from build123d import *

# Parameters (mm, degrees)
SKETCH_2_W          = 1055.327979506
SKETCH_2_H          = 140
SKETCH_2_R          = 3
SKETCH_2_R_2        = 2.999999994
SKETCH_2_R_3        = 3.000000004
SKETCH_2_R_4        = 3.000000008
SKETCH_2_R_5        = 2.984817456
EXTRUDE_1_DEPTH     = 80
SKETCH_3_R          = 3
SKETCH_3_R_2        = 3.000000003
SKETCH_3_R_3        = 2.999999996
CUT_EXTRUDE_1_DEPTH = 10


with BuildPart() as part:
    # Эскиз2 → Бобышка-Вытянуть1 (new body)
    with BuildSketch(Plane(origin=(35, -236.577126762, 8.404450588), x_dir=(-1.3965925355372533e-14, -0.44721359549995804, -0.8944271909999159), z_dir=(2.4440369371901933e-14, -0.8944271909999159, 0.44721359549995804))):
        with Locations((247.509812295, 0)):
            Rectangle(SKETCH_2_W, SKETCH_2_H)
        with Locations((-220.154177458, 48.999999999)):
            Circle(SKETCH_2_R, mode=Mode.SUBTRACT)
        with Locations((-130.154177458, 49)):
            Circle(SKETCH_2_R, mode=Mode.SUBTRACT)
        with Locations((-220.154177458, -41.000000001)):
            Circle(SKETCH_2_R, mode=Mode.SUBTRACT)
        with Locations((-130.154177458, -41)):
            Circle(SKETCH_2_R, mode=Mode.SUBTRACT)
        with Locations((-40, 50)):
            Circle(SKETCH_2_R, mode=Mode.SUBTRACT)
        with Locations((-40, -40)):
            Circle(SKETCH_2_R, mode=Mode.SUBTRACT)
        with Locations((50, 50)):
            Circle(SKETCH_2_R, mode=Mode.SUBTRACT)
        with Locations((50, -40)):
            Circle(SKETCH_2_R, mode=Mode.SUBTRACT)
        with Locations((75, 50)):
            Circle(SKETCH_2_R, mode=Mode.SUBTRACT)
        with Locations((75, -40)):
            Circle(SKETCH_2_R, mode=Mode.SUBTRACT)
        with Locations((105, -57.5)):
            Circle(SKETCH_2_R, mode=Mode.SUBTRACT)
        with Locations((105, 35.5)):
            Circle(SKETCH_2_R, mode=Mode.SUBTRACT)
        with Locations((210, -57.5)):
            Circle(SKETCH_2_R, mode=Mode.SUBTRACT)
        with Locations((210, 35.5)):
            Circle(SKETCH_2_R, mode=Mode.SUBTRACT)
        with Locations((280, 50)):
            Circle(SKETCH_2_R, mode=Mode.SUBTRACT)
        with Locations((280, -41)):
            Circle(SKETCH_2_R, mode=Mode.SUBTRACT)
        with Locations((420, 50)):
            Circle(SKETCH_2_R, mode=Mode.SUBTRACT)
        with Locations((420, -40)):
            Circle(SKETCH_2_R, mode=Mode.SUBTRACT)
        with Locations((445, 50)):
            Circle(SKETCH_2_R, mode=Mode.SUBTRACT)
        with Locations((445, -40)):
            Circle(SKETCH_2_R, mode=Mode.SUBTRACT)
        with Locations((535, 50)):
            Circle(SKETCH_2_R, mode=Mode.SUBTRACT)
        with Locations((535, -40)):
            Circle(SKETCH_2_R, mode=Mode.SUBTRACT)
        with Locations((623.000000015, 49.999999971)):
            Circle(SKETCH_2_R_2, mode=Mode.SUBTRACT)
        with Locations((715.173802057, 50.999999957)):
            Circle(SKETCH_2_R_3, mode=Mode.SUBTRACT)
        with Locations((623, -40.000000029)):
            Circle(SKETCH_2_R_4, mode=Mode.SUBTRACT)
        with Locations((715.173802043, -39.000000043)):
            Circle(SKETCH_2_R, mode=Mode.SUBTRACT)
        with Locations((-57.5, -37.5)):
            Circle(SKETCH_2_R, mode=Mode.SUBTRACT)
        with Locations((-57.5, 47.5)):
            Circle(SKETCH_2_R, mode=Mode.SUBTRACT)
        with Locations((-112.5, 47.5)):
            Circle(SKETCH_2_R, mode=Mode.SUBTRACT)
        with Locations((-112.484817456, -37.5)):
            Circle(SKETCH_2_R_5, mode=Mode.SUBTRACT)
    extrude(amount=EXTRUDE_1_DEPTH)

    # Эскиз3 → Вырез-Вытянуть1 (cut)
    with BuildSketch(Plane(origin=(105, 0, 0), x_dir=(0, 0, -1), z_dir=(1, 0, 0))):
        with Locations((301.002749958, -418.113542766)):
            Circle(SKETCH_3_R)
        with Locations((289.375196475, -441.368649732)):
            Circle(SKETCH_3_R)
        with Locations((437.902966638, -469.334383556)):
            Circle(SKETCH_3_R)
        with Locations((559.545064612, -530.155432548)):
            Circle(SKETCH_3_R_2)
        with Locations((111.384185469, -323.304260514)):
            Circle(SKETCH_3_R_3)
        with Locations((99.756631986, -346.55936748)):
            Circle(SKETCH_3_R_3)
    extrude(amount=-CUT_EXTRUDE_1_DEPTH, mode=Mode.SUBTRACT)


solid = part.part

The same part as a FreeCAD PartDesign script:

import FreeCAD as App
import Part
import Sketcher
Q = App.Units.Quantity

doc = App.newDocument("Part")
body = doc.addObject("PartDesign::Body", "Body")

# Sketch on an angled plane
sketch1 = body.newObject("Sketcher::SketchObject", "Sketch")
sketch1.Placement = App.Placement(App.Vector(35, -236.577127, 8.404451), App.Rotation(App.Vector(0, -0.447213595, -0.894427191), App.Vector(1, 0, 0), App.Vector(0, -0.894427191, 0.447213595), "ZXY"))
sketch1.addGeometry(Part.LineSegment(App.Vector(-280.2, 70, 0), App.Vector(-280.2, -70, 0)), False)
sketch1.addGeometry(Part.LineSegment(App.Vector(-280.2, -70, 0), App.Vector(775.2, -70, 0)), False)
sketch1.addGeometry(Part.LineSegment(App.Vector(775.2, -70, 0), App.Vector(775.2, 70, 0)), False)
sketch1.addGeometry(Part.LineSegment(App.Vector(775.2, 70, 0), App.Vector(-280.2, 70, 0)), False)
sketch1.addGeometry(Part.Circle(App.Vector(-220.2, -41, 0), App.Vector(0, 0, 1), 3), False)
sketch1.addGeometry(Part.Circle(App.Vector(-130.2, -41, 0), App.Vector(0, 0, 1), 3), False)
sketch1.addGeometry(Part.Circle(App.Vector(-112.5, -37.5, 0), App.Vector(0, 0, 1), 3), False)
sketch1.addGeometry(Part.Circle(App.Vector(-40, -40, 0), App.Vector(0, 0, 1), 3), False)
sketch1.addGeometry(Part.Circle(App.Vector(-57.5, -37.5, 0), App.Vector(0, 0, 1), 3), False)
sketch1.addGeometry(Part.Circle(App.Vector(105, -57.5, 0), App.Vector(0, 0, 1), 3), False)
sketch1.addGeometry(Part.Circle(App.Vector(210, -57.5, 0), App.Vector(0, 0, 1), 3), False)
sketch1.addGeometry(Part.Circle(App.Vector(50, -40, 0), App.Vector(0, 0, 1), 3), False)
sketch1.addGeometry(Part.Circle(App.Vector(75, -40, 0), App.Vector(0, 0, 1), 3), False)
sketch1.addGeometry(Part.Circle(App.Vector(280, -41, 0), App.Vector(0, 0, 1), 3), False)
sketch1.addGeometry(Part.Circle(App.Vector(420, -40, 0), App.Vector(0, 0, 1), 3), False)
sketch1.addGeometry(Part.Circle(App.Vector(445, -40, 0), App.Vector(0, 0, 1), 3), False)
sketch1.addGeometry(Part.Circle(App.Vector(535, -40, 0), App.Vector(0, 0, 1), 3), False)
sketch1.addGeometry(Part.Circle(App.Vector(623, -40, 0), App.Vector(0, 0, 1), 3), False)
sketch1.addGeometry(Part.Circle(App.Vector(715.2, -39, 0), App.Vector(0, 0, 1), 3), False)
sketch1.addGeometry(Part.Circle(App.Vector(-220.2, 49, 0), App.Vector(0, 0, 1), 3), False)
sketch1.addGeometry(Part.Circle(App.Vector(-112.5, 47.5, 0), App.Vector(0, 0, 1), 3), False)
sketch1.addGeometry(Part.Circle(App.Vector(-130.2, 49, 0), App.Vector(0, 0, 1), 3), False)
sketch1.addGeometry(Part.Circle(App.Vector(-57.5, 47.5, 0), App.Vector(0, 0, 1), 3), False)
sketch1.addGeometry(Part.Circle(App.Vector(-40, 50, 0), App.Vector(0, 0, 1), 3), False)
sketch1.addGeometry(Part.Circle(App.Vector(105, 35.5, 0), App.Vector(0, 0, 1), 3), False)
sketch1.addGeometry(Part.Circle(App.Vector(210, 35.5, 0), App.Vector(0, 0, 1), 3), False)
sketch1.addGeometry(Part.Circle(App.Vector(50, 50, 0), App.Vector(0, 0, 1), 3), False)
sketch1.addGeometry(Part.Circle(App.Vector(75, 50, 0), App.Vector(0, 0, 1), 3), False)
sketch1.addGeometry(Part.Circle(App.Vector(280, 50, 0), App.Vector(0, 0, 1), 3), False)
sketch1.addGeometry(Part.Circle(App.Vector(420, 50, 0), App.Vector(0, 0, 1), 3), False)
sketch1.addGeometry(Part.Circle(App.Vector(445, 50, 0), App.Vector(0, 0, 1), 3), False)
sketch1.addGeometry(Part.Circle(App.Vector(535, 50, 0), App.Vector(0, 0, 1), 3), False)
sketch1.addGeometry(Part.Circle(App.Vector(623, 50, 0), App.Vector(0, 0, 1), 3), False)
sketch1.addGeometry(Part.Circle(App.Vector(715.2, 51, 0), App.Vector(0, 0, 1), 3), False)
sketch1.addConstraint(Sketcher.Constraint("Coincident", 0, 2, 1, 1))
sketch1.addConstraint(Sketcher.Constraint("Coincident", 1, 2, 2, 1))
sketch1.addConstraint(Sketcher.Constraint("Coincident", 2, 2, 3, 1))
sketch1.addConstraint(Sketcher.Constraint("Coincident", 3, 2, 0, 1))
sketch1.addConstraint(Sketcher.Constraint("Vertical", 0))
sketch1.addConstraint(Sketcher.Constraint("Horizontal", 1))
sketch1.addConstraint(Sketcher.Constraint("Vertical", 2))
sketch1.addConstraint(Sketcher.Constraint("Horizontal", 3))
sketch1.addConstraint(Sketcher.Constraint("Equal", 4, 5))
sketch1.addConstraint(Sketcher.Constraint("Equal", 5, 7))
sketch1.addConstraint(Sketcher.Constraint("Equal", 7, 8))
sketch1.addConstraint(Sketcher.Constraint("Equal", 8, 9))
sketch1.addConstraint(Sketcher.Constraint("Equal", 9, 10))
sketch1.addConstraint(Sketcher.Constraint("Equal", 10, 11))
sketch1.addConstraint(Sketcher.Constraint("Equal", 11, 12))
sketch1.addConstraint(Sketcher.Constraint("Equal", 12, 13))
sketch1.addConstraint(Sketcher.Constraint("Equal", 13, 14))
sketch1.addConstraint(Sketcher.Constraint("Equal", 14, 15))
sketch1.addConstraint(Sketcher.Constraint("Equal", 15, 16))
sketch1.addConstraint(Sketcher.Constraint("Equal", 16, 17))
sketch1.addConstraint(Sketcher.Constraint("Equal", 17, 18))
sketch1.addConstraint(Sketcher.Constraint("Equal", 18, 19))
sketch1.addConstraint(Sketcher.Constraint("Equal", 19, 20))
sketch1.addConstraint(Sketcher.Constraint("Equal", 20, 21))
sketch1.addConstraint(Sketcher.Constraint("Equal", 21, 22))
sketch1.addConstraint(Sketcher.Constraint("Equal", 22, 23))
sketch1.addConstraint(Sketcher.Constraint("Equal", 23, 24))
sketch1.addConstraint(Sketcher.Constraint("Equal", 24, 25))
sketch1.addConstraint(Sketcher.Constraint("Equal", 25, 26))
sketch1.addConstraint(Sketcher.Constraint("Equal", 26, 27))
sketch1.addConstraint(Sketcher.Constraint("Equal", 27, 28))
sketch1.addConstraint(Sketcher.Constraint("Equal", 28, 29))
sketch1.addConstraint(Sketcher.Constraint("Equal", 29, 30))
sketch1.addConstraint(Sketcher.Constraint("Equal", 30, 31))
sketch1.addConstraint(Sketcher.Constraint("Equal", 31, 32))
sketch1.addConstraint(Sketcher.Constraint("Equal", 32, 33))
sketch1.addConstraint(Sketcher.Constraint("Horizontal", 4, 3, 5, 3))
sketch1.addConstraint(Sketcher.Constraint("Horizontal", 6, 3, 8, 3))
sketch1.addConstraint(Sketcher.Constraint("Horizontal", 9, 3, 10, 3))
sketch1.addConstraint(Sketcher.Constraint("Horizontal", 7, 3, 11, 3))
sketch1.addConstraint(Sketcher.Constraint("Horizontal", 11, 3, 12, 3))
sketch1.addConstraint(Sketcher.Constraint("Horizontal", 5, 3, 13, 3))
sketch1.addConstraint(Sketcher.Constraint("Horizontal", 12, 3, 14, 3))
sketch1.addConstraint(Sketcher.Constraint("Horizontal", 14, 3, 15, 3))
sketch1.addConstraint(Sketcher.Constraint("Horizontal", 15, 3, 16, 3))
sketch1.addConstraint(Sketcher.Constraint("Horizontal", 16, 3, 17, 3))
sketch1.addConstraint(Sketcher.Constraint("Horizontal", 19, 3, 21, 3))
sketch1.addConstraint(Sketcher.Constraint("Horizontal", 20, 3, 22, 3))
sketch1.addConstraint(Sketcher.Constraint("Horizontal", 24, 3, 25, 3))
sketch1.addConstraint(Sketcher.Constraint("Horizontal", 23, 3, 26, 3))
sketch1.addConstraint(Sketcher.Constraint("Horizontal", 26, 3, 27, 3))
sketch1.addConstraint(Sketcher.Constraint("Horizontal", 27, 3, 28, 3))
sketch1.addConstraint(Sketcher.Constraint("Horizontal", 28, 3, 29, 3))
sketch1.addConstraint(Sketcher.Constraint("Horizontal", 29, 3, 30, 3))
sketch1.addConstraint(Sketcher.Constraint("Horizontal", 30, 3, 31, 3))
sketch1.addConstraint(Sketcher.Constraint("Horizontal", 31, 3, 32, 3))
sketch1.addConstraint(Sketcher.Constraint("Vertical", 4, 3, 19, 3))
sketch1.addConstraint(Sketcher.Constraint("Vertical", 5, 3, 21, 3))
sketch1.addConstraint(Sketcher.Constraint("Vertical", 8, 3, 22, 3))
sketch1.addConstraint(Sketcher.Constraint("Vertical", 7, 3, 23, 3))
sketch1.addConstraint(Sketcher.Constraint("Vertical", 9, 3, 24, 3))
sketch1.addConstraint(Sketcher.Constraint("Vertical", 10, 3, 25, 3))
sketch1.addConstraint(Sketcher.Constraint("Vertical", 11, 3, 26, 3))
sketch1.addConstraint(Sketcher.Constraint("Vertical", 12, 3, 27, 3))
sketch1.addConstraint(Sketcher.Constraint("Vertical", 13, 3, 28, 3))
sketch1.addConstraint(Sketcher.Constraint("Vertical", 14, 3, 29, 3))
sketch1.addConstraint(Sketcher.Constraint("Vertical", 15, 3, 30, 3))
sketch1.addConstraint(Sketcher.Constraint("Vertical", 16, 3, 31, 3))
sketch1.addConstraint(Sketcher.Constraint("Vertical", 17, 3, 32, 3))
sketch1.addConstraint(Sketcher.Constraint("Vertical", 18, 3, 33, 3))
sketch1.addConstraint(Sketcher.Constraint("Diameter", 4, Q("6 mm")))
sketch1.addConstraint(Sketcher.Constraint("DistanceY", 0, 2, 0, 1, Q("140 mm")))
sketch1.addConstraint(Sketcher.Constraint("DistanceY", 4, 3, -1, 1, Q("41 mm")))
sketch1.addConstraint(Sketcher.Constraint("DistanceX", 7, 3, -1, 1, Q("40 mm")))
sketch1.addConstraint(Sketcher.Constraint("DistanceY", 7, 3, -1, 1, Q("40 mm")))
sketch1.addConstraint(Sketcher.Constraint("DistanceX", -1, 1, 9, 3, Q("105 mm")))
sketch1.addConstraint(Sketcher.Constraint("DistanceX", -1, 1, 10, 3, Q("210 mm")))
sketch1.addConstraint(Sketcher.Constraint("DistanceX", -1, 1, 11, 3, Q("50 mm")))
sketch1.addConstraint(Sketcher.Constraint("DistanceX", -1, 1, 12, 3, Q("75 mm")))
sketch1.addConstraint(Sketcher.Constraint("DistanceX", -1, 1, 13, 3, Q("280 mm")))
sketch1.addConstraint(Sketcher.Constraint("DistanceX", -1, 1, 14, 3, Q("420 mm")))
sketch1.addConstraint(Sketcher.Constraint("DistanceX", -1, 1, 15, 3, Q("445 mm")))
sketch1.addConstraint(Sketcher.Constraint("DistanceX", -1, 1, 16, 3, Q("535 mm")))
sketch1.addConstraint(Sketcher.Constraint("DistanceX", -1, 1, 17, 3, Q("623 mm")))
sketch1.addConstraint(Sketcher.Constraint("DistanceY", 18, 3, -1, 1, Q("39 mm")))
sketch1.addConstraint(Sketcher.Constraint("DistanceY", -1, 1, 19, 3, Q("49 mm")))
sketch1.addConstraint(Sketcher.Constraint("DistanceY", -1, 1, 23, 3, Q("50 mm")))
sketch1.addConstraint(Sketcher.Constraint("DistanceY", -1, 1, 33, 3, Q("51 mm")))
sketch1.addConstraint(Sketcher.Constraint("DistanceY", 0, 2, -1, 1, Q("70 mm")))
sketch1.addConstraint(Sketcher.Constraint("DistanceX", 4, 3, 5, 3, Q("90 mm")))
sketch1.addConstraint(Sketcher.Constraint("DistanceY", 9, 3, 8, 3, Q("20 mm")))
sketch1.addConstraint(Sketcher.Constraint("DistanceY", 6, 3, 20, 3, Q("85 mm")))
sketch1.addConstraint(Sketcher.Constraint("DistanceX", 20, 3, 8, 3, Q("55 mm")))
sketch1.addConstraint(Sketcher.Constraint("DistanceY", 9, 3, 24, 3, Q("93 mm")))
sketch1.addConstraint(Sketcher.Constraint("DistanceX", 0, 2, 4, 3, Q("60 mm")))
sketch1.addConstraint(Sketcher.Constraint("DistanceX", 18, 3, 1, 2, Q("60 mm")))
sketch1.addConstraint(Sketcher.Constraint("DistanceY", 6, 3, -1, 1, Q("37.5 mm")))
sketch1.addConstraint(Sketcher.Constraint("DistanceX", 8, 3, -1, 1, Q("57.5 mm")))
sketch1.addConstraint(Sketcher.Constraint("Diameter", 6, Q("5.969635 mm")))
sketch1.addConstraint(Sketcher.Constraint("DistanceX", 1, 1, 1, 2, Q("1055.327979 mm")))
sketch1.addConstraint(Sketcher.Constraint("DistanceX", -1, 1, 18, 3, Q("715.173802 mm")))
sketch1.addConstraint(Sketcher.Constraint("DistanceX", 5, 3, 6, 3, Q("17.66936 mm")))
pad1 = body.newObject("PartDesign::Pad", "Pad")
pad1.Profile = sketch1
pad1.Length = 80

# Sketch on YZ plane
sketch2 = body.newObject("Sketcher::SketchObject", "Sketch001")
sketch2.AttachmentSupport = (doc.getObject("YZ_Plane"), [""])
sketch2.MapMode = "FlatFace"
sketch2.AttachmentOffset = App.Placement(App.Vector(0, 0, 105), App.Rotation())
sketch2.addGeometry(Part.Circle(App.Vector(-418.1, -301, 0), App.Vector(0, 0, 1), 3), False)
sketch2.addGeometry(Part.Circle(App.Vector(-441.4, -289.4, 0), App.Vector(0, 0, 1), 3), False)
sketch2.addGeometry(Part.Circle(App.Vector(-469.3, -437.9, 0), App.Vector(0, 0, 1), 3), False)
sketch2.addGeometry(Part.Circle(App.Vector(-530.2, -559.5, 0), App.Vector(0, 0, 1), 3), False)
sketch2.addGeometry(Part.Circle(App.Vector(-323.3, -111.4, 0), App.Vector(0, 0, 1), 3), False)
sketch2.addGeometry(Part.Circle(App.Vector(-346.6, -99.8, 0), App.Vector(0, 0, 1), 3), False)
sketch2.addConstraint(Sketcher.Constraint("Equal", 0, 1))
sketch2.addConstraint(Sketcher.Constraint("Equal", 1, 2))
sketch2.addConstraint(Sketcher.Constraint("Equal", 2, 3))
sketch2.addConstraint(Sketcher.Constraint("Equal", 3, 4))
sketch2.addConstraint(Sketcher.Constraint("Equal", 4, 5))
sketch2.addConstraint(Sketcher.Constraint("Diameter", 0, Q("6 mm")))
sketch2.addConstraint(Sketcher.Constraint("DistanceY", 0, 3, -1, 1, Q("301.00275 mm")))
sketch2.addConstraint(Sketcher.Constraint("DistanceX", 1, 3, -1, 1, Q("441.36865 mm")))
sketch2.addConstraint(Sketcher.Constraint("DistanceX", 4, 3, -1, 1, Q("323.304261 mm")))
sketch2.addConstraint(Sketcher.Constraint("DistanceY", 5, 3, -1, 1, Q("99.756632 mm")))
sketch2.addConstraint(Sketcher.Constraint("DistanceX", 2, 3, 0, 3, Q("51.220841 mm")))
sketch2.addConstraint(Sketcher.Constraint("DistanceY", 2, 3, 1, 3, Q("148.52777 mm")))
sketch2.addConstraint(Sketcher.Constraint("DistanceX", 3, 3, 2, 3, Q("60.821049 mm")))
sketch2.addConstraint(Sketcher.Constraint("DistanceY", 3, 3, 1, 3, Q("270.169868 mm")))
sketch2.addConstraint(Sketcher.Constraint("DistanceY", 1, 3, 4, 3, Q("177.991011 mm")))
sketch2.addConstraint(Sketcher.Constraint("DistanceX", 0, 3, -1, 1, Q("418.113543 mm")))
sketch2.addConstraint(Sketcher.Constraint("DistanceY", 1, 3, -1, 1, Q("289.375196 mm")))
sketch2.addConstraint(Sketcher.Constraint("DistanceX", 5, 3, -1, 1, Q("346.559367 mm")))
pocket1 = body.newObject("PartDesign::Pocket", "Pocket")
pocket1.Profile = sketch2
pocket1.Length = 10

doc.recompute()
